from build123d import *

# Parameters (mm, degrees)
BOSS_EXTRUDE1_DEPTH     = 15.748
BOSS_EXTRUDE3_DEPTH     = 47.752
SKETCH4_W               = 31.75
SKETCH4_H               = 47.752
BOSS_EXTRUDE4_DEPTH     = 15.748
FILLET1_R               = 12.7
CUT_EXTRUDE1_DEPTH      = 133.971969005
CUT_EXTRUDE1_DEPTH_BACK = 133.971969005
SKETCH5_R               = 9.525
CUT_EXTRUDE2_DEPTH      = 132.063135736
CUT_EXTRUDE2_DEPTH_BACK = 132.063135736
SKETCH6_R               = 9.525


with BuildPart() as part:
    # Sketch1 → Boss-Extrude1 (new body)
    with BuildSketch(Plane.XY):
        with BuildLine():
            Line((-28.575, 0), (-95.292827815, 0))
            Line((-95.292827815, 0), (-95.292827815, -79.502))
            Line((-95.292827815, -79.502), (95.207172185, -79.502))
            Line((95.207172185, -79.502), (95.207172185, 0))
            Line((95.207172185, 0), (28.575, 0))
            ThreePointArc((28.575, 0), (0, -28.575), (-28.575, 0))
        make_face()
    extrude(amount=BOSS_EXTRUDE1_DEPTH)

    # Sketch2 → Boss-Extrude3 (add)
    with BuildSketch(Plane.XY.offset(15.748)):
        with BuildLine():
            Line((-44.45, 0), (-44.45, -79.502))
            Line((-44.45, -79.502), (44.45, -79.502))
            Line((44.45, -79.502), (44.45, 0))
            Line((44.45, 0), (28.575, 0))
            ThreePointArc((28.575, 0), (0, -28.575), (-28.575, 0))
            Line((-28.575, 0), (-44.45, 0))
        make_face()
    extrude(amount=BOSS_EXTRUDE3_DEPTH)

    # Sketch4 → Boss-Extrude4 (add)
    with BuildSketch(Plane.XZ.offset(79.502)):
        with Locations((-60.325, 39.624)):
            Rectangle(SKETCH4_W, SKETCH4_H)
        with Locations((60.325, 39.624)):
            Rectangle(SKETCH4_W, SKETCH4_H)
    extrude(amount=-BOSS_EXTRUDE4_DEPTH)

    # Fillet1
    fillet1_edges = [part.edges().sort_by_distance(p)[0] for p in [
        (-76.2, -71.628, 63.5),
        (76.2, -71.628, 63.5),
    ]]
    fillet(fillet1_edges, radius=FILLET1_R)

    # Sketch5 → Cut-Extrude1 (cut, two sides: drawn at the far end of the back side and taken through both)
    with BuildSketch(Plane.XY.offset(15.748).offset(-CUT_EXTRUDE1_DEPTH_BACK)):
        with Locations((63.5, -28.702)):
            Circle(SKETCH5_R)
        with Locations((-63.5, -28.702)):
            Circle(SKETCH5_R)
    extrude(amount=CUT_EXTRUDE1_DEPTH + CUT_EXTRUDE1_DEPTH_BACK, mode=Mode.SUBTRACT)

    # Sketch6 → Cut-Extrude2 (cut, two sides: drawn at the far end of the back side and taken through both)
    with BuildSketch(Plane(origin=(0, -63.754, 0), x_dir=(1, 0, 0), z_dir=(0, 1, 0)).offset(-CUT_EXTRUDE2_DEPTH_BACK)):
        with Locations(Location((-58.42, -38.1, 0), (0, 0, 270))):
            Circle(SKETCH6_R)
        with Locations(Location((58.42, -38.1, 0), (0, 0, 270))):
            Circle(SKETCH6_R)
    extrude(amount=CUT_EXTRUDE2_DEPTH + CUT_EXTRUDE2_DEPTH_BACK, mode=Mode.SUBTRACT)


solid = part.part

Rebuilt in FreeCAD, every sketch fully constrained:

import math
import FreeCAD as App
import Part
import Sketcher

V = App.Vector
Q = App.Units.Quantity


def edges_at(feature, points):
    """Names of the edges that pass closest to the given points."""
    edges = feature.Shape.Edges
    near = lambda p: min(range(len(edges)), key=lambda i: edges[i].distToShape(Part.Vertex(*p))[0])
    return sorted({f"Edge{near(p) + 1}" for p in points})


def add_polygon(sketch, points):
    """Adds a closed chain of lines whose ends are joined by coincident constraints."""
    first, n = sketch.GeometryCount, len(points)
    for a, b in zip(points, points[1:] + points[:1]):
        sketch.addGeometry(Part.LineSegment(App.Vector(*a, 0), App.Vector(*b, 0)), False)
    for i in range(n):
        sketch.addConstraint(Sketcher.Constraint("Coincident", first + i, 2, first + (i + 1) % n, 1))

doc = App.newDocument("Part")
body = doc.addObject("PartDesign::Body", "Body")

sketch1 = body.newObject("Sketcher::SketchObject", "Sketch")
sketch1.AttachmentSupport = (doc.getObject("XY_Plane"), [""])
sketch1.MapMode = "FlatFace"
sketch1.addGeometry(Part.LineSegment(V(-29, 0, 0), V(-95, 0, 0)), False)
sketch1.addGeometry(Part.LineSegment(V(-95, 0, 0), V(-95, -80, 0)), False)
sketch1.addGeometry(Part.LineSegment(V(-95, -80, 0), V(95, -80, 0)), False)
sketch1.addGeometry(Part.LineSegment(V(95, -80, 0), V(95, 0, 0)), False)
sketch1.addGeometry(Part.LineSegment(V(95, 0, 0), V(29, 0, 0)), False)
sketch1.addGeometry(Part.ArcOfCircle(Part.Circle(V(0, 0, 0), V(0, 0, 1), 29), math.radians(180), math.radians(360)), False)
sketch1.addConstraint(Sketcher.Constraint("Coincident", 0, 2, 1, 1))
sketch1.addConstraint(Sketcher.Constraint("Coincident", 1, 2, 2, 1))
sketch1.addConstraint(Sketcher.Constraint("Coincident", 2, 2, 3, 1))
sketch1.addConstraint(Sketcher.Constraint("Coincident", 3, 2, 4, 1))
sketch1.addConstraint(Sketcher.Constraint("Coincident", 4, 2, 5, 2))
sketch1.addConstraint(Sketcher.Constraint("Coincident", 5, 1, 0, 1))
sketch1.addConstraint(Sketcher.Constraint("Horizontal", 0))
sketch1.addConstraint(Sketcher.Constraint("Vertical", 1))
sketch1.addConstraint(Sketcher.Constraint("Horizontal", 2))
sketch1.addConstraint(Sketcher.Constraint("Vertical", 3))
sketch1.addConstraint(Sketcher.Constraint("Horizontal", 4))
sketch1.addConstraint(Sketcher.Constraint("Coincident", 5, 3, -1, 1))
sketch1.addConstraint(Sketcher.Constraint("PointOnObject", 0, 2, -1))
sketch1.addConstraint(Sketcher.Constraint("PointOnObject", 3, 2, -1))
sketch1.addConstraint(Sketcher.Constraint("DistanceX", 2, 1, 2, 2, Q("7.5 in")))
sketch1.addConstraint(Sketcher.Constraint("Radius", 5, Q("1.125 in")))
sketch1.addConstraint(Sketcher.Constraint("DistanceY", 1, 2, 1, 1, Q("3.13 in")))
sketch1.addConstraint(Sketcher.Constraint("DistanceX", 0, 2, 0, 1, 66.717828))
pad1 = body.newObject("PartDesign::Pad", "Pad")
pad1.Profile = sketch1
pad1.Length = Q("0.62 in")

sketch2 = body.newObject("Sketcher::SketchObject", "Sketch001")
sketch2.AttachmentSupport = (doc.getObject("XY_Plane"), [""])
sketch2.MapMode = "FlatFace"
sketch2.AttachmentOffset = App.Placement(V(0, 0, 0.62 * 25.4), App.Rotation())
sketch2.addGeometry(Part.LineSegment(V(-44, 0, 0), V(-44, -80, 0)), False)
sketch2.addGeometry(Part.LineSegment(V(-44, -80, 0), V(44, -80, 0)), False)
sketch2.addGeometry(Part.LineSegment(V(44, -80, 0), V(44, 0, 0)), False)
sketch2.addGeometry(Part.LineSegment(V(44, 0, 0), V(29, 0, 0)), False)
sketch2.addGeometry(Part.ArcOfCircle(Part.Circle(V(0, 0, 0), V(0, 0, 1), 29), math.radians(180), math.radians(360)), False)
sketch2.addGeometry(Part.LineSegment(V(-29, 0, 0), V(-44, 0, 0)), False)
sketch2.addConstraint(Sketcher.Constraint("Coincident", 0, 2, 1, 1))
sketch2.addConstraint(Sketcher.Constraint("Coincident", 1, 2, 2, 1))
sketch2.addConstraint(Sketcher.Constraint("Coincident", 2, 2, 3, 1))
sketch2.addConstraint(Sketcher.Constraint("Coincident", 3, 2, 4, 2))
sketch2.addConstraint(Sketcher.Constraint("Coincident", 4, 1, 5, 1))
sketch2.addConstraint(Sketcher.Constraint("Coincident", 5, 2, 0, 1))
sketch2.addConstraint(Sketcher.Constraint("Vertical", 0))
sketch2.addConstraint(Sketcher.Constraint("Horizontal", 1))
sketch2.addConstraint(Sketcher.Constraint("Vertical", 2))
sketch2.addConstraint(Sketcher.Constraint("Horizontal", 3))
sketch2.addConstraint(Sketcher.Constraint("Horizontal", 5))
sketch2.addConstraint(Sketcher.Constraint("Coincident", 4, 3, -1, 1))
sketch2.addConstraint(Sketcher.Constraint("Symmetric", 2, 2, 5, 2, -1, 1))
sketch2.addConstraint(Sketcher.Constraint("PointOnObject", 2, 2, -1))
sketch2.addConstraint(Sketcher.Constraint("DistanceX", 1, 1, 1, 2, Q("3.5 in")))
sketch2.addConstraint(Sketcher.Constraint("Radius", 4, Q("1.125 in")))
sketch2.addConstraint(Sketcher.Constraint("DistanceY", 0, 2, 0, 1, Q("3.13 in")))
pad2 = body.newObject("PartDesign::Pad", "Pad001")
pad2.Profile = sketch2
pad2.Length = Q("1.88 in")

sketch3 = body.newObject("Sketcher::SketchObject", "Sketch002")
sketch3.AttachmentSupport = (doc.getObject("XZ_Plane"), [""])
sketch3.MapMode = "FlatFace"
sketch3.AttachmentOffset = App.Placement(V(0, 0, 3.13 * 25.4), App.Rotation())
add_polygon(sketch3, [(-76, 64), (-76, 16), (-44, 16), (-44, 64)])
add_polygon(sketch3, [(44, 64), (44, 16), (76, 16), (76, 64)])
sketch3.addConstraint(Sketcher.Constraint("Vertical", 0))
sketch3.addConstraint(Sketcher.Constraint("Horizontal", 1))
sketch3.addConstraint(Sketcher.Constraint("Vertical", 2))
sketch3.addConstraint(Sketcher.Constraint("Horizontal", 3))
sketch3.addConstraint(Sketcher.Constraint("Vertical", 4))
sketch3.addConstraint(Sketcher.Constraint("Horizontal", 5))
sketch3.addConstraint(Sketcher.Constraint("Vertical", 6))
sketch3.addConstraint(Sketcher.Constraint("Horizontal", 7))
sketch3.addConstraint(Sketcher.Constraint("Symmetric", 1, 2, 4, 2, -2))
sketch3.addConstraint(Sketcher.Constraint("Symmetric", 3, 2, 6, 2, -2))
sketch3.addConstraint(Sketcher.Constraint("DistanceX", 0, 2, -1, 1, Q("3 in")))
sketch3.addConstraint(Sketcher.Constraint("DistanceX", 1, 1, 1, 2, Q("1.25 in")))
sketch3.addConstraint(Sketcher.Constraint("DistanceY", 0, 2, 0, 1, Q("1.88 in")))
sketch3.addConstraint(Sketcher.Constraint("DistanceY", -1, 1, 2, 2, Q("2.5 in")))
pad3 = body.newObject("PartDesign::Pad", "Pad002")
pad3.Profile = sketch3
pad3.Length = Q("0.62 in")
pad3.Reversed = True
doc.recompute()

fillet = body.newObject("PartDesign::Fillet", "Fillet")
fillet.Base = (pad3, edges_at(pad3, [(-76.2, -71.628, 63.5), (76.2, -71.628, 63.5)]))
fillet.Radius = Q("0.5 in")

sketch4 = body.newObject("Sketcher::SketchObject", "Sketch003")
sketch4.AttachmentSupport = (doc.getObject("XY_Plane"), [""])
sketch4.MapMode = "FlatFace"
sketch4.AttachmentOffset = App.Placement(V(0, 0, 0.62 * 25.4), App.Rotation())
sketch4.addGeometry(Part.Circle(V(64, -29, 0), V(0, 0, 1), 10), False)
sketch4.addGeometry(Part.Circle(V(-64, -29, 0), V(0, 0, 1), 10), False)
sketch4.addConstraint(Sketcher.Constraint("Equal", 0, 1))
sketch4.addConstraint(Sketcher.Constraint("Symmetric", 0, 3, 1, 3, -2))
sketch4.addConstraint(Sketcher.Constraint("Diameter", 0, Q("0.75 in")))
sketch4.addConstraint(Sketcher.Constraint("DistanceX", 1, 3, 0, 3, Q("5 in")))
sketch4.addConstraint(Sketcher.Constraint("DistanceY", 0, 3, -1, 1, Q("1.13 in")))
pocket1 = body.newObject("PartDesign::Pocket", "Pocket")
pocket1.Profile = sketch4
pocket1.Type = "ThroughAll"
pocket1.Midplane = True

sketch5 = body.newObject("Sketcher::SketchObject", "Sketch004")
sketch5.AttachmentSupport = (doc.getObject("XZ_Plane"), [""])
sketch5.MapMode = "FlatFace"
sketch5.AttachmentOffset = App.Placement(V(0, 0, 2.51 * 25.4), App.Rotation())
sketch5.addGeometry(Part.Circle(V(-58, 38, 0), V(0, 0, 1), 10), False)
sketch5.addGeometry(Part.Circle(V(58, 38, 0), V(0, 0, 1), 10), False)
sketch5.addConstraint(Sketcher.Constraint("Equal", 0, 1))
sketch5.addConstraint(Sketcher.Constraint("Symmetric", 0, 3, 1, 3, -2))
sketch5.addConstraint(Sketcher.Constraint("Diameter", 0, Q("0.75 in")))
sketch5.addConstraint(Sketcher.Constraint("DistanceX", 0, 3, -1, 1, Q("2.3 in")))
sketch5.addConstraint(Sketcher.Constraint("DistanceY", -1, 1, 0, 3, Q("1.5 in")))
pocket2 = body.newObject("PartDesign::Pocket", "Pocket001")
pocket2.Profile = sketch5
pocket2.Type = "ThroughAll"
pocket2.Midplane = True

doc.recompute()
